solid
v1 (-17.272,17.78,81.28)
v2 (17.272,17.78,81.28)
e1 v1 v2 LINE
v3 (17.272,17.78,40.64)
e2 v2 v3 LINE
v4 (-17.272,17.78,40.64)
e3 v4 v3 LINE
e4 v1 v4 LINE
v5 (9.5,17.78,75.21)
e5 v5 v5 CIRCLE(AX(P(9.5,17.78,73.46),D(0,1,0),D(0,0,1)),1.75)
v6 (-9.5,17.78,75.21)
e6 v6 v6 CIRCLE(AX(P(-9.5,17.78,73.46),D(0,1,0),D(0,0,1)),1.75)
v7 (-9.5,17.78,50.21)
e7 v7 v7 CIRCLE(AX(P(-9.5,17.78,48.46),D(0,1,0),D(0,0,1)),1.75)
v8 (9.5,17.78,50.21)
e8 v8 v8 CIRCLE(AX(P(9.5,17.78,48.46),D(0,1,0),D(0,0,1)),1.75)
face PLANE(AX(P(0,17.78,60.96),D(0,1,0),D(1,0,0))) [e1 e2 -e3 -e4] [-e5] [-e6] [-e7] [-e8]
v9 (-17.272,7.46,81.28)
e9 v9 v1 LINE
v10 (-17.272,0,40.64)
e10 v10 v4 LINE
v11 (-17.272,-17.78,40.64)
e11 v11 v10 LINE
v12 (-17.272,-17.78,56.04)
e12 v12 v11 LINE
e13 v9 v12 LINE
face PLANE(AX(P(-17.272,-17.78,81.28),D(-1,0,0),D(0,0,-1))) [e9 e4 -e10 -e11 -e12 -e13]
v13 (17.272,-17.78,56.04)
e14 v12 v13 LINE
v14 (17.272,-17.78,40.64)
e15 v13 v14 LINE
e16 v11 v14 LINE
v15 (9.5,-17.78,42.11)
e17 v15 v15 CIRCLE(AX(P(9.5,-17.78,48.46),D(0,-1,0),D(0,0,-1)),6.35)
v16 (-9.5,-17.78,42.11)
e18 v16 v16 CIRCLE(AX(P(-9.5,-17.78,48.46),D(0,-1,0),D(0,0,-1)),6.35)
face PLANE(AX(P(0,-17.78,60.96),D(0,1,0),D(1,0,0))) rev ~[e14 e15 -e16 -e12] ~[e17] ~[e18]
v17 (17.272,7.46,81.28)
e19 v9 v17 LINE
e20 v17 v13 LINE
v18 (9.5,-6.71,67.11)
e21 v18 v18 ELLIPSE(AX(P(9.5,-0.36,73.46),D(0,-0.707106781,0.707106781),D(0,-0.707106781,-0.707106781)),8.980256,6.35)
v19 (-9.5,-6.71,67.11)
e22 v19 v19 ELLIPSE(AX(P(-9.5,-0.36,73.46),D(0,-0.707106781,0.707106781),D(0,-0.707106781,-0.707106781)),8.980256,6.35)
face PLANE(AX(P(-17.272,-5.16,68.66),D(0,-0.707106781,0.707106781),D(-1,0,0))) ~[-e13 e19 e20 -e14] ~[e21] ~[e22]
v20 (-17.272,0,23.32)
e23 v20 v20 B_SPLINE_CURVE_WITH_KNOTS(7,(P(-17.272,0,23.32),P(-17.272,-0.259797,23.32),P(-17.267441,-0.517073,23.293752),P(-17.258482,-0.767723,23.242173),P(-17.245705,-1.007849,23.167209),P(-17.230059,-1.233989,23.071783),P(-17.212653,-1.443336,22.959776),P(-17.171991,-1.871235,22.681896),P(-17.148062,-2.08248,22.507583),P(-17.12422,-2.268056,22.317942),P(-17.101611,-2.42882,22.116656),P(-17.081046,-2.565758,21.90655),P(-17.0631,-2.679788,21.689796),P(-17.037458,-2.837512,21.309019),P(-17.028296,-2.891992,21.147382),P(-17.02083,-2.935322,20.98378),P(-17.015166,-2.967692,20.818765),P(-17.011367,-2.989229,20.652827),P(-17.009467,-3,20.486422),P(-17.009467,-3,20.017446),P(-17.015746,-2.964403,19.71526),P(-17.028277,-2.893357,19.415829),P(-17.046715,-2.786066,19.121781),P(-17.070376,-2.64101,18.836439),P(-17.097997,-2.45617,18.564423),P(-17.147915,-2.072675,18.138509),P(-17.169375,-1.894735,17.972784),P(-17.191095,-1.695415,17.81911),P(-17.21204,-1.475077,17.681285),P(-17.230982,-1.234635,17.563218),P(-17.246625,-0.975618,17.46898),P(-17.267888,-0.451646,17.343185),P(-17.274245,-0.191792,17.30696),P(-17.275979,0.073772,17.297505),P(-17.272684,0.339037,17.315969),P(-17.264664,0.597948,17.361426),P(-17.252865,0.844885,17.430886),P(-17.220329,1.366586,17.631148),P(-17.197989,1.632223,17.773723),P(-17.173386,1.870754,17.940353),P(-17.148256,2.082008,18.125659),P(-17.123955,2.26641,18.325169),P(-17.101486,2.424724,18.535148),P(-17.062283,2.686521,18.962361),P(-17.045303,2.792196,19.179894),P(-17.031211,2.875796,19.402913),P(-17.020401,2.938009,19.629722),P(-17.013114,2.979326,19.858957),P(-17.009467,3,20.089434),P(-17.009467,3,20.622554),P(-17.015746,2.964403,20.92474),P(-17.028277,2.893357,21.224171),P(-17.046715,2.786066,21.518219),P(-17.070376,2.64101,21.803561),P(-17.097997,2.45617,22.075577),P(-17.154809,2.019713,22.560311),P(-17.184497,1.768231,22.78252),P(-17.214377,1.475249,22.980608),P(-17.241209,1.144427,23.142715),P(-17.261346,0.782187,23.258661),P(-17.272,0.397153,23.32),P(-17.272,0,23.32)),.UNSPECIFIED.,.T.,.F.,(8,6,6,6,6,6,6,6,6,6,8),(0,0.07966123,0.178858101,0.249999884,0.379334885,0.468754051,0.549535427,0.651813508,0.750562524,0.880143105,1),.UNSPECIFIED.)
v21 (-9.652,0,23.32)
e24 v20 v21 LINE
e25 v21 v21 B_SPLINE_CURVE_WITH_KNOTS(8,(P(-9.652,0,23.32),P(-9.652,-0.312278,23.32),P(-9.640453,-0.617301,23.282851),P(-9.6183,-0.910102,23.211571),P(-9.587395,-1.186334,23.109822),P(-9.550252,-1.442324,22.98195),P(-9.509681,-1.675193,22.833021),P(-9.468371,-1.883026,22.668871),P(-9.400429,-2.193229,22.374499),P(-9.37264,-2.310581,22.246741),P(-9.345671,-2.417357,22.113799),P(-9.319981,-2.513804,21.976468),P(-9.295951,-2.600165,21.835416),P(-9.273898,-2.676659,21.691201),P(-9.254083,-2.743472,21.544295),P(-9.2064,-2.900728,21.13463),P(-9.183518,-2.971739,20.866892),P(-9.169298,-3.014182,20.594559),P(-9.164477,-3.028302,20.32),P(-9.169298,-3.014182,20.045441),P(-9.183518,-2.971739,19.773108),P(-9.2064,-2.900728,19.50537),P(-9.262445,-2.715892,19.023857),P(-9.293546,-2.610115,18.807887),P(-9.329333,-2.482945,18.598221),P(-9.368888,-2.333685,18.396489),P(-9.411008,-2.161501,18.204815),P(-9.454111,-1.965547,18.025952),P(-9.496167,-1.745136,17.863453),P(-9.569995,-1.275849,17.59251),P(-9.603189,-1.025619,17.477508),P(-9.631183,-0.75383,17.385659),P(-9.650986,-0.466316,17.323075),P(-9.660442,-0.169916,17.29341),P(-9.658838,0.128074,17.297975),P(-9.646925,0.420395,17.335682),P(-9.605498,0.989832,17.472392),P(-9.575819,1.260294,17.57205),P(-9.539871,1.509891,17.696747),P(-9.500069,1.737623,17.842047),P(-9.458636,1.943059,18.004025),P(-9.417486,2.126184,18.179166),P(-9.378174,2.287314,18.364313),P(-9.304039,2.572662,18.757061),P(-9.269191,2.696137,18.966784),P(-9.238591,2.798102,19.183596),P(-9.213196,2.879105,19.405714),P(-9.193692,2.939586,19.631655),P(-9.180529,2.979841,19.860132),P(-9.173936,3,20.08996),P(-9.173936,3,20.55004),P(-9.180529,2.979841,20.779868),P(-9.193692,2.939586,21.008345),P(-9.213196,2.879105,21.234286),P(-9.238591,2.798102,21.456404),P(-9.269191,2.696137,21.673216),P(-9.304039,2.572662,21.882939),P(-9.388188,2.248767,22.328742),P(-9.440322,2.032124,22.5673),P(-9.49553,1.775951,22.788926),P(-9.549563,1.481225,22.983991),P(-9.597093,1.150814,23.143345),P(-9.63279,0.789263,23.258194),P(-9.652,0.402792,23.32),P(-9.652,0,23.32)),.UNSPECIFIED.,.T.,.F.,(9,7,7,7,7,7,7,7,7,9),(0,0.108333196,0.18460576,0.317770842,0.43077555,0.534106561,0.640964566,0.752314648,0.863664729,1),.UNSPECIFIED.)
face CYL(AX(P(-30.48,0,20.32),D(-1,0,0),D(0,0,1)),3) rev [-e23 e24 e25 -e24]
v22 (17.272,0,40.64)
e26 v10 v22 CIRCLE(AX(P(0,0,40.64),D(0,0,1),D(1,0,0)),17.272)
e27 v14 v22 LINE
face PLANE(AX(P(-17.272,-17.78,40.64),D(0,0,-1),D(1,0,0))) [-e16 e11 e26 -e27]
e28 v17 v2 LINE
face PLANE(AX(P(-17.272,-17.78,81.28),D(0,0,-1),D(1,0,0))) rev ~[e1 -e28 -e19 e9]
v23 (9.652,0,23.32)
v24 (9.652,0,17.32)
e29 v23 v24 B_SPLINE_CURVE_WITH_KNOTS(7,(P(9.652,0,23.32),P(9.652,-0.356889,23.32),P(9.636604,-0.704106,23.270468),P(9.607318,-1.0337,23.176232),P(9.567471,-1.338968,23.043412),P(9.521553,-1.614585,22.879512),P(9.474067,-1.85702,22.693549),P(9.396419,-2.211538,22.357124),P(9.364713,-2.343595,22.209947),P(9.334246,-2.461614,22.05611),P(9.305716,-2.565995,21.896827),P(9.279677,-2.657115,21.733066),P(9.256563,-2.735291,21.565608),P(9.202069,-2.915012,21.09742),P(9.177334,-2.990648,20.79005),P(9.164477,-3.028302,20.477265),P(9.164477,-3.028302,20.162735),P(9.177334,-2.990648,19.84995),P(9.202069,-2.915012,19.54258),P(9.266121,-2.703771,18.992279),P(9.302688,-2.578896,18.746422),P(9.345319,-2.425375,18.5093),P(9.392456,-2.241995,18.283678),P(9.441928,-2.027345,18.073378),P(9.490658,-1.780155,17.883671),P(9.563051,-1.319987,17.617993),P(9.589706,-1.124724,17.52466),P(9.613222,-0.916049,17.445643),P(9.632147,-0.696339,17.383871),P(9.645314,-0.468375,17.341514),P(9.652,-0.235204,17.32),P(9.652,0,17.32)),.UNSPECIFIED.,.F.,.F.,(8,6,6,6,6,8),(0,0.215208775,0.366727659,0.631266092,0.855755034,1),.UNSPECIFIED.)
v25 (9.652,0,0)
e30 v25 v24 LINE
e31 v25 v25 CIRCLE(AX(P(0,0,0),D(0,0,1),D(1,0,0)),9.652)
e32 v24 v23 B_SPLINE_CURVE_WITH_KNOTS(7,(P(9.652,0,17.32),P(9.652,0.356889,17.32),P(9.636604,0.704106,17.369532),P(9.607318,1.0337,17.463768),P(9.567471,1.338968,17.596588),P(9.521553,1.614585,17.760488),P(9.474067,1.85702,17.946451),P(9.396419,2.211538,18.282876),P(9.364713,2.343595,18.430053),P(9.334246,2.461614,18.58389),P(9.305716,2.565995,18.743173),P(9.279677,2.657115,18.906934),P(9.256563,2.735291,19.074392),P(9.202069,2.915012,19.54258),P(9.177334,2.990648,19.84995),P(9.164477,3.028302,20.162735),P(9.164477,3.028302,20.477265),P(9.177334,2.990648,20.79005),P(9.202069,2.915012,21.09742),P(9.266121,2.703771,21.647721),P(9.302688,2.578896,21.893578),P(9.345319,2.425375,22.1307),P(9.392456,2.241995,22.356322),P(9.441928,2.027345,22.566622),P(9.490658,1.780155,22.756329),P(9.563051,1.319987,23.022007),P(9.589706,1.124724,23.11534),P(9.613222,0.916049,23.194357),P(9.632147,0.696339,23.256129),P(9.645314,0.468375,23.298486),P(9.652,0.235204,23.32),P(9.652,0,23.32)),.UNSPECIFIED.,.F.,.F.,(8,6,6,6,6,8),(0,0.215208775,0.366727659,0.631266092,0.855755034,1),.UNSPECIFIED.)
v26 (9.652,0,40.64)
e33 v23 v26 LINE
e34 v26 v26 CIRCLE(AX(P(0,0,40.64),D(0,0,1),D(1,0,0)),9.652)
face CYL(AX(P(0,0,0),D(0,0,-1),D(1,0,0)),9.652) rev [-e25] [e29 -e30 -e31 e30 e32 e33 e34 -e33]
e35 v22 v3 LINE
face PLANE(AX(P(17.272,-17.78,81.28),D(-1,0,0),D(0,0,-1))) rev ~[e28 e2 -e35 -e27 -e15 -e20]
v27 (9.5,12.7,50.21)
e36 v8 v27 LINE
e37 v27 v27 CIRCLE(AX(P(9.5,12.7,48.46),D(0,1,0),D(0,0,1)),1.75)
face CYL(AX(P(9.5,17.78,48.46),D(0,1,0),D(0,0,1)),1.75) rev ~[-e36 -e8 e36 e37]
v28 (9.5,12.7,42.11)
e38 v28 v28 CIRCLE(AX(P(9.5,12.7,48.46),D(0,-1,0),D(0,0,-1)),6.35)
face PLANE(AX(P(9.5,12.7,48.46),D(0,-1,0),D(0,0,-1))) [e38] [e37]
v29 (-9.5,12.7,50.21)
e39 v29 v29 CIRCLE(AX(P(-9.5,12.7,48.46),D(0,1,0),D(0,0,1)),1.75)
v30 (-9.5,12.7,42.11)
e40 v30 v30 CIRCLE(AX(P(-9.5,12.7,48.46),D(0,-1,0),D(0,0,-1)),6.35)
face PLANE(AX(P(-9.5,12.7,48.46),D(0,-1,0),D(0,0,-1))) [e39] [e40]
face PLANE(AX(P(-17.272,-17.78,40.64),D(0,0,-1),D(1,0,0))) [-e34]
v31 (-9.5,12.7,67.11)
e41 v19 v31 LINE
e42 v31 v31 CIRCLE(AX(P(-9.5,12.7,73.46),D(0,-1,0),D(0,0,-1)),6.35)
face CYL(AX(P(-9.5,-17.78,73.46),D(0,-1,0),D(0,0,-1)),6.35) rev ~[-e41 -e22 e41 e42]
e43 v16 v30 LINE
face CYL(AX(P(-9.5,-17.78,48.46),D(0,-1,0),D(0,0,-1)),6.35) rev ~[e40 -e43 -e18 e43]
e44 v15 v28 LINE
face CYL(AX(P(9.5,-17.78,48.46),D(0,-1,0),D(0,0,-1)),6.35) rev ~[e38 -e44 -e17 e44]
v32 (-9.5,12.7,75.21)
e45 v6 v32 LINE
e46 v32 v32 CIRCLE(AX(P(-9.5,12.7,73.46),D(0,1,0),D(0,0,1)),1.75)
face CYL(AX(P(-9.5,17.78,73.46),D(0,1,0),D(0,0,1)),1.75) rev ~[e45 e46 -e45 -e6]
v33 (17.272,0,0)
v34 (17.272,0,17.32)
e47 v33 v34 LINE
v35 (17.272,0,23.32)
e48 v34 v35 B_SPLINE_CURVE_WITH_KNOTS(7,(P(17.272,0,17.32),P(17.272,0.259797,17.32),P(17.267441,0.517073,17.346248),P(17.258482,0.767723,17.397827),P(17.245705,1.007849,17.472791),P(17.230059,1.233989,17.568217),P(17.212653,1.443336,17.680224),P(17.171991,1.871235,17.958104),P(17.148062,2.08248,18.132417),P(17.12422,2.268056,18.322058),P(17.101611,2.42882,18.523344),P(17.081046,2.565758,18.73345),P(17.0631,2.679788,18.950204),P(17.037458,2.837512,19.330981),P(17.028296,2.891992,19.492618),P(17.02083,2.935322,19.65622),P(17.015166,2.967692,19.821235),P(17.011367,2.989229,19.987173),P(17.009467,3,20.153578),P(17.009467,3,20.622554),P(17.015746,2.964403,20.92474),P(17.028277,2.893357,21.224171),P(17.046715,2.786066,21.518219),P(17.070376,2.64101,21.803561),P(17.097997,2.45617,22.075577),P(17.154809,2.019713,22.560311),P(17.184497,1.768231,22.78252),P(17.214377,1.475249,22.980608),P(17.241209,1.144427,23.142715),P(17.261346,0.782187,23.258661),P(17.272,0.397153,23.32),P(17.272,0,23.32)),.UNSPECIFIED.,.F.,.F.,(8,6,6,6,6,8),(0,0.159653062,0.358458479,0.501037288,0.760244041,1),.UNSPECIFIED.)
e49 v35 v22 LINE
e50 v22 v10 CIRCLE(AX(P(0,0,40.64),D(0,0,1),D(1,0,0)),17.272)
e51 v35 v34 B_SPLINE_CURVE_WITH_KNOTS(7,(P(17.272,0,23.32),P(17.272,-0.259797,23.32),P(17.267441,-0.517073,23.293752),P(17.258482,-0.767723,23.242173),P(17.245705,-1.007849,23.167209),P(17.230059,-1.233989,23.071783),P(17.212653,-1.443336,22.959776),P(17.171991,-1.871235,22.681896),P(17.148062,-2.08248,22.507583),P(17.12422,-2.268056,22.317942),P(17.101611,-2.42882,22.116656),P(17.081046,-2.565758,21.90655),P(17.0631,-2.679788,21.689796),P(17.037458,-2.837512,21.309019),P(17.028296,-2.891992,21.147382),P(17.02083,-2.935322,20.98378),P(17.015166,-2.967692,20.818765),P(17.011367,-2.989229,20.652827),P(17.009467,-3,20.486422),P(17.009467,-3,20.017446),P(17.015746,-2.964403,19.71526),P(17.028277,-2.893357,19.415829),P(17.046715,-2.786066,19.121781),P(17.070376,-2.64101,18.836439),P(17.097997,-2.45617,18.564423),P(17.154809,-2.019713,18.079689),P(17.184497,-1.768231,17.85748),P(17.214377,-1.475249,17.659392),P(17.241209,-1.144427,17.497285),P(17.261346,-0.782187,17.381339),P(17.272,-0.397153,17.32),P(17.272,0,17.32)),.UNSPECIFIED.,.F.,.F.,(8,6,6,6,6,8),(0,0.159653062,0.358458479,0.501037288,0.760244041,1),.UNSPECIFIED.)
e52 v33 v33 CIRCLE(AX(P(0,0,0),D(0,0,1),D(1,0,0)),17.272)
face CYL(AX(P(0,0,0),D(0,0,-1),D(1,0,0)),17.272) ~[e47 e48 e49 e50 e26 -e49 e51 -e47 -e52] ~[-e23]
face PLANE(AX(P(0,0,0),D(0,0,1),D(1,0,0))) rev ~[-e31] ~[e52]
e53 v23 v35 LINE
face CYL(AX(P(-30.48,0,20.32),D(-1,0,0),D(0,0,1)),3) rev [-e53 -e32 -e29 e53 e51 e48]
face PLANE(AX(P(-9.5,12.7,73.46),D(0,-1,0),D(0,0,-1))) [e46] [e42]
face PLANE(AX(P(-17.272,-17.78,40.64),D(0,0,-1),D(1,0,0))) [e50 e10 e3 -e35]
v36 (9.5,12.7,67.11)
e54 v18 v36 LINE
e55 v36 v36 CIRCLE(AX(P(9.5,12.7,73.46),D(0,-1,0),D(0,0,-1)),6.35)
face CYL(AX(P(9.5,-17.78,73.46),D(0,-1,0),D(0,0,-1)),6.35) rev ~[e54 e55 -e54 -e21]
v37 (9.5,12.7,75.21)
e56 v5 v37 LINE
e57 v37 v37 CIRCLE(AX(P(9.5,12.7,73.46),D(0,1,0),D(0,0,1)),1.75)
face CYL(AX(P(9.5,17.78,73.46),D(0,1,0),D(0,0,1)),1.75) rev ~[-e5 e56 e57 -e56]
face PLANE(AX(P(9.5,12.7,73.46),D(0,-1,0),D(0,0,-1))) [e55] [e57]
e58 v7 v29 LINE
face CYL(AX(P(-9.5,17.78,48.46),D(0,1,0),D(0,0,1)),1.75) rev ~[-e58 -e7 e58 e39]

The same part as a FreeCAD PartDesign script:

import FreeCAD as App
import Part
import Sketcher
Q = App.Units.Quantity


def edges_at(feature, points):
    """Names of the edges that pass closest to the given points."""
    edges = feature.Shape.Edges
    near = lambda p: min(range(len(edges)), key=lambda i: edges[i].distToShape(Part.Vertex(*p))[0])
    return sorted({f"Edge{near(p) + 1}" for p in points})

doc = App.newDocument("Part")
body = doc.addObject("PartDesign::Body", "Body")

sketch1 = body.newObject("Sketcher::SketchObject", "Sketch")
sketch1.AttachmentSupport = (doc.getObject("XY_Plane"), [""])
sketch1.MapMode = "FlatFace"
sketch1.addGeometry([
    Part.Circle(App.Vector(0, 0, 0), App.Vector(0, 0, 1), 17),
    Part.Circle(App.Vector(0, 0, 0), App.Vector(0, 0, 1), 10),
], False)
sketch1.addConstraint([
    Sketcher.Constraint("Coincident", 0, 3, -1, 1),
    Sketcher.Constraint("Coincident", 1, 3, -1, 1),
    Sketcher.Constraint("Diameter", 0, Q("1.36 in")),
    Sketcher.Constraint("Diameter", 1, Q("0.76 in")),
])
pad1 = body.newObject("PartDesign::Pad", "Pad")
pad1.Profile = sketch1
pad1.Length = Q("1.6 in")

sketch2 = body.newObject("Sketcher::SketchObject", "Sketch001")
sketch2.AttachmentSupport = (doc.getObject("XZ_Plane"), [""])
sketch2.MapMode = "FlatFace"
sketch2.addGeometry([
    Part.LineSegment(App.Vector(-17, 41, 0), App.Vector(-17, 81, 0)),
    Part.LineSegment(App.Vector(-17, 81, 0), App.Vector(17, 81, 0)),
    Part.LineSegment(App.Vector(17, 81, 0), App.Vector(17, 41, 0)),
    Part.LineSegment(App.Vector(17, 41, 0), App.Vector(-17, 41, 0)),
], False)
sketch2.addConstraint([
    Sketcher.Constraint("Coincident", 0, 2, 1, 1),
    Sketcher.Constraint("Coincident", 1, 2, 2, 1),
    Sketcher.Constraint("Coincident", 2, 2, 3, 1),
    Sketcher.Constraint("Coincident", 3, 2, 0, 1),
    Sketcher.Constraint("Vertical", 0),
    Sketcher.Constraint("Horizontal", 1),
    Sketcher.Constraint("Vertical", 2),
    Sketcher.Constraint("Horizontal", 3),
    Sketcher.Constraint("DistanceY", 0, 1, 0, 2, Q("1.6 in")),
    Sketcher.Constraint("DistanceX", 1, 1, 1, 2, Q("1.36 in")),
    Sketcher.Constraint("DistanceY", -1, 1, 0, 2, Q("3.2 in")),
    Sketcher.Constraint("DistanceX", 0, 2, -1, 1, Q("0.68 in")),
])
pad2 = body.newObject("PartDesign::Pad", "Pad001")
pad2.Profile = sketch2
pad2.Type = "TwoLengths"
pad2.Length = Q("0.7 in")
pad2.Length2 = Q("0.7 in")
pad2.Reversed = True
doc.recompute()

chamfer = body.newObject("PartDesign::Chamfer", "Chamfer")
chamfer.Base = (pad2, edges_at(pad2, [(0, -17.78, 81.28)]))
chamfer.Size = 25.24

sketch3 = body.newObject("Sketcher::SketchObject", "Sketch002")
sketch3.AttachmentSupport = (doc.getObject("XZ_Plane"), [""])
sketch3.MapMode = "FlatFace"
sketch3.AttachmentOffset = App.Placement(App.Vector(0, 0, -0.7 * 25.4), App.Rotation())
sketch3.addGeometry([
    Part.Circle(App.Vector(-9.5, 48.5, 0), App.Vector(0, 0, 1), 1.8),
    Part.Circle(App.Vector(9.5, 48.5, 0), App.Vector(0, 0, 1), 1.8),
    Part.Circle(App.Vector(9.5, 73.5, 0), App.Vector(0, 0, 1), 1.8),
    Part.Circle(App.Vector(-9.5, 73.5, 0), App.Vector(0, 0, 1), 1.8),
], False)
sketch3.addConstraint([
    Sketcher.Constraint("Equal", 0, 1),
    Sketcher.Constraint("Equal", 1, 2),
    Sketcher.Constraint("Equal", 2, 3),
    Sketcher.Constraint("Symmetric", 0, 3, 1, 3, -2),
    Sketcher.Constraint("Symmetric", 2, 3, 3, 3, -2),
    Sketcher.Constraint("Vertical", 1, 3, 2, 3),
    Sketcher.Constraint("Diameter", 0, 3.5),
    Sketcher.Constraint("DistanceX", 0, 3, -1, 1, 9.5),
    Sketcher.Constraint("DistanceY", -1, 1, 0, 3, 48.46),
    Sketcher.Constraint("DistanceY", -1, 1, 2, 3, 73.46),
])
pocket1 = body.newObject("PartDesign::Pocket", "Pocket")
pocket1.Profile = sketch3
pocket1.Length = Q("1.6 in")
pocket1.Reversed = True

sketch4 = body.newObject("Sketcher::SketchObject", "Sketch003")
sketch4.AttachmentSupport = (doc.getObject("XZ_Plane"), [""])
sketch4.MapMode = "FlatFace"
sketch4.AttachmentOffset = App.Placement(App.Vector(0, 0, 0.7 * 25.4), App.Rotation())
sketch4.addGeometry([
    Part.Circle(App.Vector(-10, 73, 0), App.Vector(0, 0, 1), 6),
    Part.Circle(App.Vector(10, 73, 0), App.Vector(0, 0, 1), 6),
    Part.Circle(App.Vector(-10, 48, 0), App.Vector(0, 0, 1), 6),
    Part.Circle(App.Vector(10, 48, 0), App.Vector(0, 0, 1), 6),
], False)
sketch4.addConstraint([
    Sketcher.Constraint("Equal", 0, 1),
    Sketcher.Constraint("Equal", 1, 2),
    Sketcher.Constraint("Equal", 2, 3),
    Sketcher.Constraint("Symmetric", 0, 3, 1, 3, -2),
    Sketcher.Constraint("Symmetric", 2, 3, 3, 3, -2),
    Sketcher.Constraint("Vertical", 0, 3, 2, 3),
    Sketcher.Constraint("Diameter", 0, Q("0.5 in")),
    Sketcher.Constraint("DistanceX", 0, 3, -1, 1, 9.5),
    Sketcher.Constraint("DistanceY", -1, 1, 0, 3, 73.46),
    Sketcher.Constraint("DistanceY", -1, 1, 2, 3, 48.46),
])
pocket2 = body.newObject("PartDesign::Pocket", "Pocket001")
pocket2.Profile = sketch4
pocket2.Length = Q("1.2 in")

sketch5 = body.newObject("Sketcher::SketchObject", "Sketch004")
sketch5.AttachmentSupport = (doc.getObject("YZ_Plane"), [""])
sketch5.MapMode = "FlatFace"
sketch5.addGeometry(Part.Circle(App.Vector(0, 20.3, 0), App.Vector(0, 0, 1), 3), False)
sketch5.addConstraint([
    Sketcher.Constraint("PointOnObject", 0, 3, -2),
    Sketcher.Constraint("DistanceY", -1, 1, 0, 3, Q("0.8 in")),
    Sketcher.Constraint("Diameter", 0, 6.0),
])
pocket3 = body.newObject("PartDesign::Pocket", "Pocket002")
pocket3.Profile = sketch5
pocket3.Type = "ThroughAll"
pocket3.Midplane = True

doc.recompute()
